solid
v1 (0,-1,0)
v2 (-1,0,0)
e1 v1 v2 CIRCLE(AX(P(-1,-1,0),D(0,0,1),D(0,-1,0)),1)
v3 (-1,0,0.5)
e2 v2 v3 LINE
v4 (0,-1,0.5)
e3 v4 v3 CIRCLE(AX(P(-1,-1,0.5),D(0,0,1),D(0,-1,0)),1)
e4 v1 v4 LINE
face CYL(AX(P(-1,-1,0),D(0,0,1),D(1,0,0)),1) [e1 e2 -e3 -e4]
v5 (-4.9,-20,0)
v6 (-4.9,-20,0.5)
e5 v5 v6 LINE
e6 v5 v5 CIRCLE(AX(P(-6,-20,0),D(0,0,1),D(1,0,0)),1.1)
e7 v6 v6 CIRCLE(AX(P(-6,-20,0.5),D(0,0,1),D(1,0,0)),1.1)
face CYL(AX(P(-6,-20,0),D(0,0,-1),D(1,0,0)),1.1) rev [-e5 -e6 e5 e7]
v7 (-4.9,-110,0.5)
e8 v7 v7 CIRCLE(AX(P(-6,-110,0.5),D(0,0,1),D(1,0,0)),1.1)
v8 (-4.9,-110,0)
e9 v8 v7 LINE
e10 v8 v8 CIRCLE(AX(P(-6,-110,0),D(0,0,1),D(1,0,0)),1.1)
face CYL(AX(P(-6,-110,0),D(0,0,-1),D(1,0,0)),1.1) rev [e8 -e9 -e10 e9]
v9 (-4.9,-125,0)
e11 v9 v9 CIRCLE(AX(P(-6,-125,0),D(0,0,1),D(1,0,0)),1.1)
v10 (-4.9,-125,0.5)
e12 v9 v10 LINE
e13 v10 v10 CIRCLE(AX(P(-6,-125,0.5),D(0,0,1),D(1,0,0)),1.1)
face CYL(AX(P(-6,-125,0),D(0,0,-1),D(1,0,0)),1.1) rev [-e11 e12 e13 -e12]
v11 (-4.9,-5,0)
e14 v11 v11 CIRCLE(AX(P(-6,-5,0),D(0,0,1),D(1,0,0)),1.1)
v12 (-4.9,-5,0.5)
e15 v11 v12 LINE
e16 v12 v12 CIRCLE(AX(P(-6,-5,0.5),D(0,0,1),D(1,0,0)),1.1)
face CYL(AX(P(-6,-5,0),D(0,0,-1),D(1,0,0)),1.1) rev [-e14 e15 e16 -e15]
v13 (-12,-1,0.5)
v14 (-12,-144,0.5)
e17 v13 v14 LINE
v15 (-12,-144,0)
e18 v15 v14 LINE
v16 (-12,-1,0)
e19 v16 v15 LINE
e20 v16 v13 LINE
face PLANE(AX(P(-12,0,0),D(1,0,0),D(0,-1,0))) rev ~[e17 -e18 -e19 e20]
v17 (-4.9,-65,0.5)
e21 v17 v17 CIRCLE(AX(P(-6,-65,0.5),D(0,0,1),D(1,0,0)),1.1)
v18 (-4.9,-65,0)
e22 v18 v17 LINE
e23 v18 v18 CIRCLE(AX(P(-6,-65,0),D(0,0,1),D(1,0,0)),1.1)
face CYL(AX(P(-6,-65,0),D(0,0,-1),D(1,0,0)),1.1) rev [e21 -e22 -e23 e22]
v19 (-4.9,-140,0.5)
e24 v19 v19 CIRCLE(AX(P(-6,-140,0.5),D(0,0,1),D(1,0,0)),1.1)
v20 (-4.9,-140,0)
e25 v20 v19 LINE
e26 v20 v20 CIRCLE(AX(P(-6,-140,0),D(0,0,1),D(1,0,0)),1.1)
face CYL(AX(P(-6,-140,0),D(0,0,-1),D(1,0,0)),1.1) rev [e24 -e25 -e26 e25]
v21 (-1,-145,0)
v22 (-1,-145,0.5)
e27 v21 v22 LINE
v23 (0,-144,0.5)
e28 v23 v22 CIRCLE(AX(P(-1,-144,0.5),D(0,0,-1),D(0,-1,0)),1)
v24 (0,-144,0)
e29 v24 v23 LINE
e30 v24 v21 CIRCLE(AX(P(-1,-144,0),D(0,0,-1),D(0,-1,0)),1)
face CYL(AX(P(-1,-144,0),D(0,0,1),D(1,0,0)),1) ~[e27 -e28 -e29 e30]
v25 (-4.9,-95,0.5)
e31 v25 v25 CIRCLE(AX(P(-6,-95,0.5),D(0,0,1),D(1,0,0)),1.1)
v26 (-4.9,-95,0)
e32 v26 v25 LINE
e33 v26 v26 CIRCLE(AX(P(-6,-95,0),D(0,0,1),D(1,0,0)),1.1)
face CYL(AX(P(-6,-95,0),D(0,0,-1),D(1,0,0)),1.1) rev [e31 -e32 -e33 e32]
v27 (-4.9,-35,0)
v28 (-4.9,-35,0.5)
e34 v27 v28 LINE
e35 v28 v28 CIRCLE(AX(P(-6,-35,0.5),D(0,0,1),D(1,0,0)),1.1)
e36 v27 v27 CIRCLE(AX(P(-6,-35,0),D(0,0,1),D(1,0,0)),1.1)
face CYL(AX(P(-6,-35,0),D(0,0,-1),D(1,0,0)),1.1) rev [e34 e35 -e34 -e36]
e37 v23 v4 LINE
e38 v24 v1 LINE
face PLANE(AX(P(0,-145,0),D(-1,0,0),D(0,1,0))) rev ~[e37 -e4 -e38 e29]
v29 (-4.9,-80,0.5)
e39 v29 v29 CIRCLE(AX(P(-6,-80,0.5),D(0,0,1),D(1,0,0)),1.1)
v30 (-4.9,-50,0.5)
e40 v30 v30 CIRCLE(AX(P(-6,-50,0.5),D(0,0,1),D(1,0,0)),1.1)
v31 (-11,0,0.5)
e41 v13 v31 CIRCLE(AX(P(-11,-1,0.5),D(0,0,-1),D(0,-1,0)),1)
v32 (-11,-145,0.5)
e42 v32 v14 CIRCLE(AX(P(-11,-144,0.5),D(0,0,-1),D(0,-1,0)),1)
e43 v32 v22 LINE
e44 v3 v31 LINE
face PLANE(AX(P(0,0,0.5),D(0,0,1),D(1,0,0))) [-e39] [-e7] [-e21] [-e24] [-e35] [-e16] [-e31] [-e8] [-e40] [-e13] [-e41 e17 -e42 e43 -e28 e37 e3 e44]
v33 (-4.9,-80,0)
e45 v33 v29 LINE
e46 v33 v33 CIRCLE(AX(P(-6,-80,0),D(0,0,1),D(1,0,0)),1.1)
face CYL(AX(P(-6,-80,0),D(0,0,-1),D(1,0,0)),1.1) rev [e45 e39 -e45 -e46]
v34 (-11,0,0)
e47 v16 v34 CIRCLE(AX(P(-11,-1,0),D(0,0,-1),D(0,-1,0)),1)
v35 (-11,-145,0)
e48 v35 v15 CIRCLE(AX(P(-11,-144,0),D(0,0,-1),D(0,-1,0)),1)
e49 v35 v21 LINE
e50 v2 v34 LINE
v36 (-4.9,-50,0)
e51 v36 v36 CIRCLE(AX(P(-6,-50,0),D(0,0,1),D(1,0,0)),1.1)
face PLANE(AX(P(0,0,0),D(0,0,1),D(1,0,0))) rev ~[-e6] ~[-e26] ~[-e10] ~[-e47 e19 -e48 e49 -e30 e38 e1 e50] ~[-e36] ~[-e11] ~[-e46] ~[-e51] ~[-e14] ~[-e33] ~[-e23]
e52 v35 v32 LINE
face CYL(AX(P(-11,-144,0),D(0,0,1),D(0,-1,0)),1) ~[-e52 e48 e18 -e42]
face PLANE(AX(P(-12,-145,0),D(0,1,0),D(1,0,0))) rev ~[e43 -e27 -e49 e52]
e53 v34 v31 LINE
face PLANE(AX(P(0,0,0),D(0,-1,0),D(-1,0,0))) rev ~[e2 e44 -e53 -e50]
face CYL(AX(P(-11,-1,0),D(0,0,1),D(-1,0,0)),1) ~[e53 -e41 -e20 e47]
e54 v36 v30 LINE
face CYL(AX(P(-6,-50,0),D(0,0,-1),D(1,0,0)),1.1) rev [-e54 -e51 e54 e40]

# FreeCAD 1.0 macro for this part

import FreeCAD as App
import Part
import Sketcher
from FreeCAD import Vector


def edges_at(feature, points):
    """Names of the edges that pass closest to the given points."""
    edges = feature.Shape.Edges
    near = lambda p: min(range(len(edges)), key=lambda i: edges[i].distToShape(Part.Vertex(*p))[0])
    return sorted({f"Edge{near(p) + 1}" for p in points})

doc = App.newDocument("Part")
params = doc.addObject("Spreadsheet::Sheet", "Params")
for row, (alias, value) in enumerate([
    ("sketch1_diameter", "2.2 mm"),
    ("sketch1_width", "12 mm"),
    ("sketch1_height", "145 mm"),
    ("pad1_length", "0.5 mm"),
    ("fillet_radius", "1 mm"),
], start=1):
    params.set(f"A{row}", alias)
    params.set(f"B{row}", "=" + value)
    params.setAlias(f"B{row}", alias)

body = doc.addObject("PartDesign::Body", "Body")

# Sketch on XY plane
sketch1 = doc.addObject("Sketcher::SketchObject", "Sketch")
body.addObject(sketch1)
sketch1.AttachmentSupport = (doc.XY_Plane, [""])
sketch1.MapMode = "FlatFace"
sketch1.addGeometry([
    Part.LineSegment(Vector(0, -145, 0), Vector(0, 0, 0)),  # 0
    Part.LineSegment(Vector(0, 0, 0), Vector(-12, 0, 0)),  # 1
    Part.LineSegment(Vector(-12, 0, 0), Vector(-12, -145, 0)),  # 2
    Part.LineSegment(Vector(-12, -145, 0), Vector(0, -145, 0)),  # 3
    Part.Circle(Vector(-6, -140, 0), Vector(0, 0, 1), 1.1),  # 4
    Part.Circle(Vector(-6, -125, 0), Vector(0, 0, 1), 1.1),  # 5
    Part.Circle(Vector(-6, -110, 0), Vector(0, 0, 1), 1.1),  # 6
    Part.Circle(Vector(-6, -95, 0), Vector(0, 0, 1), 1.1),  # 7
    Part.Circle(Vector(-6, -80, 0), Vector(0, 0, 1), 1.1),  # 8
    Part.Circle(Vector(-6, -65, 0), Vector(0, 0, 1), 1.1),  # 9
    Part.Circle(Vector(-6, -50, 0), Vector(0, 0, 1), 1.1),  # 10
    Part.Circle(Vector(-6, -35, 0), Vector(0, 0, 1), 1.1),  # 11
    Part.Circle(Vector(-6, -20, 0), Vector(0, 0, 1), 1.1),  # 12
    Part.Circle(Vector(-6, -5, 0), Vector(0, 0, 1), 1.1),  # 13
], False)
sketch1.addConstraint([
    Sketcher.Constraint("Coincident", 0, 2, 1, 1),
    Sketcher.Constraint("Coincident", 1, 2, 2, 1),
    Sketcher.Constraint("Coincident", 2, 2, 3, 1),
    Sketcher.Constraint("Coincident", 3, 2, 0, 1),
    Sketcher.Constraint("Vertical", 0),
    Sketcher.Constraint("Horizontal", 1),
    Sketcher.Constraint("Vertical", 2),
    Sketcher.Constraint("Horizontal", 3),
    Sketcher.Constraint("Coincident", 0, 2, -1, 1),
    Sketcher.Constraint("Equal", 4, 5),
    Sketcher.Constraint("Equal", 5, 6),
    Sketcher.Constraint("Equal", 6, 7),
    Sketcher.Constraint("Equal", 7, 8),
    Sketcher.Constraint("Equal", 8, 9),
    Sketcher.Constraint("Equal", 9, 10),
    Sketcher.Constraint("Equal", 10, 11),
    Sketcher.Constraint("Equal", 11, 12),
    Sketcher.Constraint("Equal", 12, 13),
    Sketcher.Constraint("Vertical", 4, 3, 5, 3),
    Sketcher.Constraint("Vertical", 5, 3, 6, 3),
    Sketcher.Constraint("Vertical", 6, 3, 7, 3),
    Sketcher.Constraint("Vertical", 7, 3, 8, 3),
    Sketcher.Constraint("Vertical", 8, 3, 9, 3),
    Sketcher.Constraint("Vertical", 9, 3, 10, 3),
    Sketcher.Constraint("Vertical", 10, 3, 11, 3),
    Sketcher.Constraint("Vertical", 11, 3, 12, 3),
    Sketcher.Constraint("Vertical", 12, 3, 13, 3),
    Sketcher.Constraint("Diameter", 4, 2.2),
    Sketcher.Constraint("DistanceX", 1, 2, 1, 1, 12.0),
    Sketcher.Constraint("DistanceY", 0, 1, 0, 2, 145.0),
    Sketcher.Constraint("DistanceX", 4, 3, -1, 1, 6.0),
    Sketcher.Constraint("DistanceY", 13, 3, -1, 1, 5.0),
    Sketcher.Constraint("DistanceY", 4, 3, 5, 3, 15.0),
    Sketcher.Constraint("DistanceY", 5, 3, 6, 3, 15.0),
    Sketcher.Constraint("DistanceY", 6, 3, 7, 3, 15.0),
    Sketcher.Constraint("DistanceY", 7, 3, 8, 3, 15.0),
    Sketcher.Constraint("DistanceY", 8, 3, 9, 3, 15.0),
    Sketcher.Constraint("DistanceY", 9, 3, 10, 3, 15.0),
    Sketcher.Constraint("DistanceY", 10, 3, 11, 3, 15.0),
    Sketcher.Constraint("DistanceY", 11, 3, 12, 3, 15.0),
    Sketcher.Constraint("DistanceY", 12, 3, 13, 3, 15.0),
])
sketch1.setExpression("Constraints[27]", "Params.sketch1_diameter")
sketch1.setExpression("Constraints[28]", "Params.sketch1_width")
sketch1.setExpression("Constraints[29]", "Params.sketch1_height")
pad1 = doc.addObject("PartDesign::Pad", "Pad")
body.addObject(pad1)
pad1.Profile = sketch1
pad1.setExpression("Length", "Params.pad1_length")
doc.recompute()

fillet = doc.addObject("PartDesign::Fillet", "Fillet")
body.addObject(fillet)
fillet.Base = (pad1, edges_at(pad1, [
    (-12, -145, 0.25),
    (0, -145, 0.25),
    (0, 0, 0.25),
    (-12, 0, 0.25),
]))
fillet.setExpression("Radius", "Params.fillet_radius")

doc.recompute()
